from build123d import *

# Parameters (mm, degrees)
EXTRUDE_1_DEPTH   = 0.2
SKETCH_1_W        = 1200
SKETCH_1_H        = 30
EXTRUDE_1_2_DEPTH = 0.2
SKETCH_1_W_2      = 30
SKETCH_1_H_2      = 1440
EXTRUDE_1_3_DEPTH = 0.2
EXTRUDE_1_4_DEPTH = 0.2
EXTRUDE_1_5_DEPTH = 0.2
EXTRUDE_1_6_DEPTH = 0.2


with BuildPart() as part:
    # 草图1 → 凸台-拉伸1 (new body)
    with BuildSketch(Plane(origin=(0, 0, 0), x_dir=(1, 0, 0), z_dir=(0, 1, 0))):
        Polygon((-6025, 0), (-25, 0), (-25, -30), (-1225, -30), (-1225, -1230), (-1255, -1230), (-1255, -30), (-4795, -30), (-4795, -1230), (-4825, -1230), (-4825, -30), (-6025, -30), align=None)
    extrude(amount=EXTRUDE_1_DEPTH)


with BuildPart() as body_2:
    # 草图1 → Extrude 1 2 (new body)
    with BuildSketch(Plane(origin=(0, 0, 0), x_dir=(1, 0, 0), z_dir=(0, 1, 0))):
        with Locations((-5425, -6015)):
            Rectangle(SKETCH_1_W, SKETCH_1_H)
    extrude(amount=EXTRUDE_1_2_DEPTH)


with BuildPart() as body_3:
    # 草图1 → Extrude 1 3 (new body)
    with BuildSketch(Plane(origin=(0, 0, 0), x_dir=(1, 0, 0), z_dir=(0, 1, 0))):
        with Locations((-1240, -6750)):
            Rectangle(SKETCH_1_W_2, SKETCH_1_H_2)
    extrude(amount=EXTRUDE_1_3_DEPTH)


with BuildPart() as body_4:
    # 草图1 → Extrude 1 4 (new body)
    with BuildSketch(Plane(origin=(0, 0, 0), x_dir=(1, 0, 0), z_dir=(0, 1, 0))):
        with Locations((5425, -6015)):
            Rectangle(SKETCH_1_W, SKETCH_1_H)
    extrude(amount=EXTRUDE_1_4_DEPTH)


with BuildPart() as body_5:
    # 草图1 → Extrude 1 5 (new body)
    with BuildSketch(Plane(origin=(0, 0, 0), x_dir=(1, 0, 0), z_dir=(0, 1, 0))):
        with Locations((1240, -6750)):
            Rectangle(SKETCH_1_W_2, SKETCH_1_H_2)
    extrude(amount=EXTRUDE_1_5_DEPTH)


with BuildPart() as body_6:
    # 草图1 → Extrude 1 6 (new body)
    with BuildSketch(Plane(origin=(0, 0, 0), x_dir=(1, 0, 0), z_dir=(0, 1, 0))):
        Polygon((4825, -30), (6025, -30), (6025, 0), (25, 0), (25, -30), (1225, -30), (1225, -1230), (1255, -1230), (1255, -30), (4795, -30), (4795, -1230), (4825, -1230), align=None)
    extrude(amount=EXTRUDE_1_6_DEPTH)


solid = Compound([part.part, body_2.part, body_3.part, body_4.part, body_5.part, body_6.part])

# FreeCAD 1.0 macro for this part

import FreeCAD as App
import Part
import Sketcher

doc = App.newDocument("Part")
body = doc.addObject("PartDesign::Body", "Body")

# Sketch on XZ plane
sketch1 = body.newObject("Sketcher::SketchObject", "Sketch")
sketch1.AttachmentSupport = (doc.getObject("XZ_Plane"), [""])
sketch1.MapMode = "FlatFace"
sketch1.addGeometry([
    Part.LineSegment(App.Vector(-25, 0, 0), App.Vector(-6025, 0, 0)),  # 0
    Part.LineSegment(App.Vector(-6025, 0, 0), App.Vector(-6025, 30, 0)),  # 1
    Part.LineSegment(App.Vector(-6025, 30, 0), App.Vector(-4825, 30, 0)),  # 2
    Part.LineSegment(App.Vector(-4825, 30, 0), App.Vector(-4825, 1230, 0)),  # 3
    Part.LineSegment(App.Vector(-4825, 1230, 0), App.Vector(-4795, 1230, 0)),  # 4
    Part.LineSegment(App.Vector(-4795, 1230, 0), App.Vector(-4795, 30, 0)),  # 5
    Part.LineSegment(App.Vector(-4795, 30, 0), App.Vector(-1255, 30, 0)),  # 6
    Part.LineSegment(App.Vector(-1255, 30, 0), App.Vector(-1255, 1230, 0)),  # 7
    Part.LineSegment(App.Vector(-1255, 1230, 0), App.Vector(-1225, 1230, 0)),  # 8
    Part.LineSegment(App.Vector(-1225, 1230, 0), App.Vector(-1225, 30, 0)),  # 9
    Part.LineSegment(App.Vector(-1225, 30, 0), App.Vector(-25, 30, 0)),  # 10
    Part.LineSegment(App.Vector(-25, 30, 0), App.Vector(-25, 0, 0)),  # 11
], False)
sketch1.addConstraint([
    Sketcher.Constraint("Coincident", 0, 2, 1, 1),
    Sketcher.Constraint("Coincident", 1, 2, 2, 1),
    Sketcher.Constraint("Coincident", 2, 2, 3, 1),
    Sketcher.Constraint("Coincident", 3, 2, 4, 1),
    Sketcher.Constraint("Coincident", 4, 2, 5, 1),
    Sketcher.Constraint("Coincident", 5, 2, 6, 1),
    Sketcher.Constraint("Coincident", 6, 2, 7, 1),
    Sketcher.Constraint("Coincident", 7, 2, 8, 1),
    Sketcher.Constraint("Coincident", 8, 2, 9, 1),
    Sketcher.Constraint("Coincident", 9, 2, 10, 1),
    Sketcher.Constraint("Coincident", 10, 2, 11, 1),
    Sketcher.Constraint("Coincident", 11, 2, 0, 1),
    Sketcher.Constraint("Horizontal", 0),
    Sketcher.Constraint("Vertical", 1),
    Sketcher.Constraint("Horizontal", 2),
    Sketcher.Constraint("Vertical", 3),
    Sketcher.Constraint("Horizontal", 4),
    Sketcher.Constraint("Vertical", 5),
    Sketcher.Constraint("Horizontal", 6),
    Sketcher.Constraint("Vertical", 7),
    Sketcher.Constraint("Horizontal", 8),
    Sketcher.Constraint("Vertical", 9),
    Sketcher.Constraint("Horizontal", 10),
    Sketcher.Constraint("Vertical", 11),
    Sketcher.Constraint("PointOnObject", 0, 2, -1),
    Sketcher.Constraint("Horizontal", 2, 2, 5, 2),
    Sketcher.Constraint("Horizontal", 4, 2, 7, 2),
    Sketcher.Constraint("Horizontal", 6, 2, 9, 2),
    Sketcher.Constraint("Equal", 4, 8),
    Sketcher.Constraint("Equal", 2, 10),
    Sketcher.Constraint("Equal", 8, 1),
    Sketcher.Constraint("Equal", 10, 3),
    Sketcher.Constraint("DistanceX", 0, 2, 0, 1, 6000.0),
    Sketcher.Constraint("DistanceX", 2, 1, 2, 2, 1200.0),
    Sketcher.Constraint("DistanceX", 4, 1, 4, 2, 30.0),
    Sketcher.Constraint("DistanceX", 0, 2, -1, 1, 6025.0),
])
pad1 = body.newObject("PartDesign::Pad", "Pad")
pad1.Profile = sketch1
pad1.Length = 0.2
pad1.Reversed = True
body2 = doc.addObject("PartDesign::Body", "Body001")

# Sketch on XZ plane
sketch2 = body2.newObject("Sketcher::SketchObject", "Sketch001")
sketch2.AttachmentSupport = (doc.getObject("XZ_Plane001"), [""])
sketch2.MapMode = "FlatFace"
sketch2.addGeometry([
    Part.LineSegment(App.Vector(-6025, 6000, 0), App.Vector(-6025, 6030, 0)),
    Part.LineSegment(App.Vector(-6025, 6030, 0), App.Vector(-4825, 6030, 0)),
    Part.LineSegment(App.Vector(-4825, 6030, 0), App.Vector(-4825, 6000, 0)),
    Part.LineSegment(App.Vector(-4825, 6000, 0), App.Vector(-6025, 6000, 0)),
], False)
sketch2.addConstraint([
    Sketcher.Constraint("Coincident", 0, 2, 1, 1),
    Sketcher.Constraint("Coincident", 1, 2, 2, 1),
    Sketcher.Constraint("Coincident", 2, 2, 3, 1),
    Sketcher.Constraint("Coincident", 3, 2, 0, 1),
    Sketcher.Constraint("Vertical", 0),
    Sketcher.Constraint("Horizontal", 1),
    Sketcher.Constraint("Vertical", 2),
    Sketcher.Constraint("Horizontal", 3),
    Sketcher.Constraint("DistanceX", 1, 1, 1, 2, 1200.0),
    Sketcher.Constraint("DistanceY", 0, 1, 0, 2, 30.0),
    Sketcher.Constraint("DistanceX", 0, 2, -1, 1, 6025.0),
    Sketcher.Constraint("DistanceY", -1, 1, 0, 2, 6030.0),
])
pad2 = body2.newObject("PartDesign::Pad", "Pad001")
pad2.Profile = sketch2
pad2.Length = 0.2
pad2.Reversed = True
body3 = doc.addObject("PartDesign::Body", "Body002")

# Sketch on XZ plane
sketch3 = body3.newObject("Sketcher::SketchObject", "Sketch002")
sketch3.AttachmentSupport = (doc.getObject("XZ_Plane002"), [""])
sketch3.MapMode = "FlatFace"
sketch3.addGeometry([
    Part.LineSegment(App.Vector(-1255, 6030, 0), App.Vector(-1255, 7470, 0)),
    Part.LineSegment(App.Vector(-1255, 7470, 0), App.Vector(-1225, 7470, 0)),
    Part.LineSegment(App.Vector(-1225, 7470, 0), App.Vector(-1225, 6030, 0)),
    Part.LineSegment(App.Vector(-1225, 6030, 0), App.Vector(-1255, 6030, 0)),
], False)
sketch3.addConstraint([
    Sketcher.Constraint("Coincident", 0, 2, 1, 1),
    Sketcher.Constraint("Coincident", 1, 2, 2, 1),
    Sketcher.Constraint("Coincident", 2, 2, 3, 1),
    Sketcher.Constraint("Coincident", 3, 2, 0, 1),
    Sketcher.Constraint("Vertical", 0),
    Sketcher.Constraint("Horizontal", 1),
    Sketcher.Constraint("Vertical", 2),
    Sketcher.Constraint("Horizontal", 3),
    Sketcher.Constraint("DistanceX", 1, 1, 1, 2, 30.0),
    Sketcher.Constraint("DistanceY", 0, 1, 0, 2, 1440.0),
    Sketcher.Constraint("DistanceX", 0, 2, -1, 1, 1255.0),
    Sketcher.Constraint("DistanceY", -1, 1, 0, 2, 7470.0),
])
pad3 = body3.newObject("PartDesign::Pad", "Pad002")
pad3.Profile = sketch3
pad3.Length = 0.2
pad3.Reversed = True
body4 = doc.addObject("PartDesign::Body", "Body003")

# Sketch on XZ plane
sketch4 = body4.newObject("Sketcher::SketchObject", "Sketch003")
sketch4.AttachmentSupport = (doc.getObject("XZ_Plane003"), [""])
sketch4.MapMode = "FlatFace"
sketch4.addGeometry([
    Part.LineSegment(App.Vector(4825, 6000, 0), App.Vector(4825, 6030, 0)),
    Part.LineSegment(App.Vector(4825, 6030, 0), App.Vector(6025, 6030, 0)),
    Part.LineSegment(App.Vector(6025, 6030, 0), App.Vector(6025, 6000, 0)),
    Part.LineSegment(App.Vector(6025, 6000, 0), App.Vector(4825, 6000, 0)),
], False)
sketch4.addConstraint([
    Sketcher.Constraint("Coincident", 0, 2, 1, 1),
    Sketcher.Constraint("Coincident", 1, 2, 2, 1),
    Sketcher.Constraint("Coincident", 2, 2, 3, 1),
    Sketcher.Constraint("Coincident", 3, 2, 0, 1),
    Sketcher.Constraint("Vertical", 0),
    Sketcher.Constraint("Horizontal", 1),
    Sketcher.Constraint("Vertical", 2),
    Sketcher.Constraint("Horizontal", 3),
    Sketcher.Constraint("DistanceX", 1, 1, 1, 2, 1200.0),
    Sketcher.Constraint("DistanceY", 0, 1, 0, 2, 30.0),
    Sketcher.Constraint("DistanceX", -1, 1, 0, 2, 4825.0),
    Sketcher.Constraint("DistanceY", -1, 1, 0, 2, 6030.0),
])
pad4 = body4.newObject("PartDesign::Pad", "Pad003")
pad4.Profile = sketch4
pad4.Length = 0.2
pad4.Reversed = True
body5 = doc.addObject("PartDesign::Body", "Body004")

# Sketch on XZ plane
sketch5 = body5.newObject("Sketcher::SketchObject", "Sketch004")
sketch5.AttachmentSupport = (doc.getObject("XZ_Plane004"), [""])
sketch5.MapMode = "FlatFace"
sketch5.addGeometry([
    Part.LineSegment(App.Vector(1225, 6030, 0), App.Vector(1225, 7470, 0)),
    Part.LineSegment(App.Vector(1225, 7470, 0), App.Vector(1255, 7470, 0)),
    Part.LineSegment(App.Vector(1255, 7470, 0), App.Vector(1255, 6030, 0)),
    Part.LineSegment(App.Vector(1255, 6030, 0), App.Vector(1225, 6030, 0)),
], False)
sketch5.addConstraint([
    Sketcher.Constraint("Coincident", 0, 2, 1, 1),
    Sketcher.Constraint("Coincident", 1, 2, 2, 1),
    Sketcher.Constraint("Coincident", 2, 2, 3, 1),
    Sketcher.Constraint("Coincident", 3, 2, 0, 1),
    Sketcher.Constraint("Vertical", 0),
    Sketcher.Constraint("Horizontal", 1),
    Sketcher.Constraint("Vertical", 2),
    Sketcher.Constraint("Horizontal", 3),
    Sketcher.Constraint("DistanceX", 1, 1, 1, 2, 30.0),
    Sketcher.Constraint("DistanceY", 0, 1, 0, 2, 1440.0),
    Sketcher.Constraint("DistanceX", -1, 1, 0, 2, 1225.0),
    Sketcher.Constraint("DistanceY", -1, 1, 0, 2, 7470.0),
])
pad5 = body5.newObject("PartDesign::Pad", "Pad004")
pad5.Profile = sketch5
pad5.Length = 0.2
pad5.Reversed = True
body6 = doc.addObject("PartDesign::Body", "Body005")

# Sketch on XZ plane
sketch6 = body6.newObject("Sketcher::SketchObject", "Sketch005")
sketch6.AttachmentSupport = (doc.getObject("XZ_Plane005"), [""])
sketch6.MapMode = "FlatFace"
sketch6.addGeometry([
    Part.LineSegment(App.Vector(4825, 30, 0), App.Vector(6025, 30, 0)),  # 0
    Part.LineSegment(App.Vector(6025, 30, 0), App.Vector(6025, 0, 0)),  # 1
    Part.LineSegment(App.Vector(6025, 0, 0), App.Vector(25, 0, 0)),  # 2
    Part.LineSegment(App.Vector(25, 0, 0), App.Vector(25, 30, 0)),  # 3
    Part.LineSegment(App.Vector(25, 30, 0), App.Vector(1225, 30, 0)),  # 4
    Part.LineSegment(App.Vector(1225, 30, 0), App.Vector(1225, 1230, 0)),  # 5
    Part.LineSegment(App.Vector(1225, 1230, 0), App.Vector(1255, 1230, 0)),  # 6
    Part.LineSegment(App.Vector(1255, 1230, 0), App.Vector(1255, 30, 0)),  # 7
    Part.LineSegment(App.Vector(1255, 30, 0), App.Vector(4795, 30, 0)),  # 8
    Part.LineSegment(App.Vector(4795, 30, 0), App.Vector(4795, 1230, 0)),  # 9
    Part.LineSegment(App.Vector(4795, 1230, 0), App.Vector(4825, 1230, 0)),  # 10
    Part.LineSegment(App.Vector(4825, 1230, 0), App.Vector(4825, 30, 0)),  # 11
], False)
sketch6.addConstraint([
    Sketcher.Constraint("Coincident", 0, 2, 1, 1),
    Sketcher.Constraint("Coincident", 1, 2, 2, 1),
    Sketcher.Constraint("Coincident", 2, 2, 3, 1),
    Sketcher.Constraint("Coincident", 3, 2, 4, 1),
    Sketcher.Constraint("Coincident", 4, 2, 5, 1),
    Sketcher.Constraint("Coincident", 5, 2, 6, 1),
    Sketcher.Constraint("Coincident", 6, 2, 7, 1),
    Sketcher.Constraint("Coincident", 7, 2, 8, 1),
    Sketcher.Constraint("Coincident", 8, 2, 9, 1),
    Sketcher.Constraint("Coincident", 9, 2, 10, 1),
    Sketcher.Constraint("Coincident", 10, 2, 11, 1),
    Sketcher.Constraint("Coincident", 11, 2, 0, 1),
    Sketcher.Constraint("Horizontal", 0),
    Sketcher.Constraint("Vertical", 1),
    Sketcher.Constraint("Horizontal", 2),
    Sketcher.Constraint("Vertical", 3),
    Sketcher.Constraint("Horizontal", 4),
    Sketcher.Constraint("Vertical", 5),
    Sketcher.Constraint("Horizontal", 6),
    Sketcher.Constraint("Vertical", 7),
    Sketcher.Constraint("Horizontal", 8),
    Sketcher.Constraint("Vertical", 9),
    Sketcher.Constraint("Horizontal", 10),
    Sketcher.Constraint("Vertical", 11),
    Sketcher.Constraint("PointOnObject", 1, 2, -1),
    Sketcher.Constraint("Horizontal", 0, 2, 3, 2),
    Sketcher.Constraint("Horizontal", 4, 2, 7, 2),
    Sketcher.Constraint("Horizontal", 6, 2, 9, 2),
    Sketcher.Constraint("Equal", 0, 4),
    Sketcher.Constraint("Equal", 6, 10),
    Sketcher.Constraint("Equal", 10, 1),
    Sketcher.Constraint("Equal", 4, 5),
    Sketcher.Constraint("DistanceX", 0, 1, 0, 2, 1200.0),
    Sketcher.Constraint("DistanceX", 2, 2, 2, 1, 6000.0),
    Sketcher.Constraint("DistanceX", 6, 1, 6, 2, 30.0),
    Sketcher.Constraint("DistanceX", -1, 1, 0, 2, 6025.0),
])
pad6 = body6.newObject("PartDesign::Pad", "Pad005")
pad6.Profile = sketch6
pad6.Length = 0.2
pad6.Reversed = True

doc.recompute()
